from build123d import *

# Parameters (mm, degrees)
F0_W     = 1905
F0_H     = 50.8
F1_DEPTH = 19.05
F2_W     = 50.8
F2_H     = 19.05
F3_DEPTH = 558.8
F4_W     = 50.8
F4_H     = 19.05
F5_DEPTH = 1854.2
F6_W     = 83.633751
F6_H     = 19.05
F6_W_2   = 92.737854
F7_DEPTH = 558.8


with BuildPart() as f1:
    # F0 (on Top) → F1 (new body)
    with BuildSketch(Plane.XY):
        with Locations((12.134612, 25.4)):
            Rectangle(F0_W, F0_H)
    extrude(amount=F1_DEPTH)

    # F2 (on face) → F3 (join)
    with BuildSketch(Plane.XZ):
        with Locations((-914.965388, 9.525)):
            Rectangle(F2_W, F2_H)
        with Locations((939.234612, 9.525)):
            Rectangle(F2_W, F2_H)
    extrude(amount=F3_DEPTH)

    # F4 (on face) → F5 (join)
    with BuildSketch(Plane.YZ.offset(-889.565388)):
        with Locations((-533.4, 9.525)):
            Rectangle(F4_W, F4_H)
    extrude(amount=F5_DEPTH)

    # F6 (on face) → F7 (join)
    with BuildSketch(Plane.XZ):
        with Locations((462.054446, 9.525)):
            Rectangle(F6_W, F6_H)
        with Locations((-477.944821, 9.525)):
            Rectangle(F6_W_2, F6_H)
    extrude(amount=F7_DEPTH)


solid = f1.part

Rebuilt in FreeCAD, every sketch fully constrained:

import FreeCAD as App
import Part
import Sketcher

V = App.Vector
Q = App.Units.Quantity


def add_polygon(sketch, points):
    """Adds a closed chain of lines whose ends are joined by coincident constraints."""
    first, n = sketch.GeometryCount, len(points)
    for a, b in zip(points, points[1:] + points[:1]):
        sketch.addGeometry(Part.LineSegment(App.Vector(*a, 0), App.Vector(*b, 0)), False)
    for i in range(n):
        sketch.addConstraint(Sketcher.Constraint("Coincident", first + i, 2, first + (i + 1) % n, 1))

doc = App.newDocument("Part")
body = doc.addObject("PartDesign::Body", "Body")

sketch1 = body.newObject("Sketcher::SketchObject", "Sketch")
sketch1.AttachmentSupport = (doc.getObject("XY_Plane"), [""])
sketch1.MapMode = "FlatFace"
add_polygon(sketch1, [(-940.365388, 50.8), (-940.365388, 0), (964.634612, 0), (964.634612, 50.8)])
sketch1.addConstraint([
    Sketcher.Constraint("Vertical", 0),
    Sketcher.Constraint("Horizontal", 1),
    Sketcher.Constraint("Vertical", 2),
    Sketcher.Constraint("Horizontal", 3),
    Sketcher.Constraint("PointOnObject", 0, 2, -1),
    Sketcher.Constraint("DistanceX", 1, 1, 1, 2, Q("75 in")),
    Sketcher.Constraint("DistanceY", 0, 2, 0, 1, Q("2 in")),
    Sketcher.Constraint("DistanceX", 0, 2, -1, 1, Q("940.365388 mm")),
])
pad1 = body.newObject("PartDesign::Pad", "Pad")
pad1.Profile = sketch1
pad1.Length = Q("0.75 in")

sketch2 = body.newObject("Sketcher::SketchObject", "Sketch001")
sketch2.AttachmentSupport = (doc.getObject("XZ_Plane"), [""])
sketch2.MapMode = "FlatFace"
add_polygon(sketch2, [(-940.365388, 19.05), (-940.365388, 0), (-889.565388, 0), (-889.565388, 19.05)])
add_polygon(sketch2, [(913.834612, 19.05), (913.834612, 0), (964.634612, 0), (964.634612, 19.05)])
sketch2.addConstraint([
    Sketcher.Constraint("Vertical", 0),
    Sketcher.Constraint("Horizontal", 1),
    Sketcher.Constraint("Vertical", 2),
    Sketcher.Constraint("Horizontal", 3),
    Sketcher.Constraint("Vertical", 4),
    Sketcher.Constraint("Horizontal", 5),
    Sketcher.Constraint("Vertical", 6),
    Sketcher.Constraint("Horizontal", 7),
    Sketcher.Constraint("PointOnObject", 0, 2, -1),
    Sketcher.Constraint("PointOnObject", 4, 2, -1),
    Sketcher.Constraint("Horizontal", 3, 2, 6, 2),
    Sketcher.Constraint("Equal", 3, 5),
    Sketcher.Constraint("DistanceX", 1, 1, 1, 2, Q("2 in")),
    Sketcher.Constraint("DistanceX", 1, 2, 4, 2, Q("71 in")),
    Sketcher.Constraint("DistanceY", 0, 2, 0, 1, Q("0.75 in")),
    Sketcher.Constraint("DistanceX", 0, 2, -1, 1, Q("940.365388 mm")),
])
pad2 = body.newObject("PartDesign::Pad", "Pad001")
pad2.Profile = sketch2
pad2.Length = Q("22 in")

sketch3 = body.newObject("Sketcher::SketchObject", "Sketch002")
sketch3.AttachmentSupport = (doc.getObject("YZ_Plane"), [""])
sketch3.MapMode = "FlatFace"
sketch3.AttachmentOffset = App.Placement(V(0, 0, -889.565388), App.Rotation())
add_polygon(sketch3, [(-558.8, 19.05), (-558.8, 0), (-508, 0), (-508, 19.05)])
sketch3.addConstraint([
    Sketcher.Constraint("Vertical", 0),
    Sketcher.Constraint("Horizontal", 1),
    Sketcher.Constraint("Vertical", 2),
    Sketcher.Constraint("Horizontal", 3),
    Sketcher.Constraint("PointOnObject", 0, 2, -1),
    Sketcher.Constraint("DistanceX", 1, 1, 1, 2, Q("2 in")),
    Sketcher.Constraint("DistanceX", 0, 2, -1, 1, Q("22 in")),
    Sketcher.Constraint("DistanceY", 0, 2, 0, 1, Q("0.75 in")),
])
pad3 = body.newObject("PartDesign::Pad", "Pad002")
pad3.Profile = sketch3
pad3.Length = Q("73 in")

sketch4 = body.newObject("Sketcher::SketchObject", "Sketch003")
sketch4.AttachmentSupport = (doc.getObject("XZ_Plane"), [""])
sketch4.MapMode = "FlatFace"
add_polygon(sketch4, [(420.237571, 19.05), (420.237571, 0), (503.871322, 0), (503.871322, 19.05)])
add_polygon(sketch4, [(-524.313748, 19.05), (-524.313748, 0), (-431.575894, 0), (-431.575894, 19.05)])
sketch4.addConstraint([
    Sketcher.Constraint("Vertical", 0),
    Sketcher.Constraint("Horizontal", 1),
    Sketcher.Constraint("Vertical", 2),
    Sketcher.Constraint("Horizontal", 3),
    Sketcher.Constraint("Vertical", 4),
    Sketcher.Constraint("Horizontal", 5),
    Sketcher.Constraint("Vertical", 6),
    Sketcher.Constraint("Horizontal", 7),
    Sketcher.Constraint("PointOnObject", 0, 2, -1),
    Sketcher.Constraint("PointOnObject", 4, 2, -1),
    Sketcher.Constraint("Horizontal", 3, 2, 6, 2),
    Sketcher.Constraint("DistanceY", 0, 2, 0, 1, Q("0.75 in")),
    Sketcher.Constraint("DistanceX", 1, 1, 1, 2, Q("83.633751 mm")),
    Sketcher.Constraint("DistanceX", 5, 1, 5, 2, Q("92.737854 mm")),
    Sketcher.Constraint("DistanceX", -1, 1, 0, 2, Q("420.237571 mm")),
    Sketcher.Constraint("DistanceX", 4, 2, -1, 1, Q("524.313748 mm")),
])
pad4 = body.newObject("PartDesign::Pad", "Pad003")
pad4.Profile = sketch4
pad4.Length = Q("22 in")

doc.recompute()
